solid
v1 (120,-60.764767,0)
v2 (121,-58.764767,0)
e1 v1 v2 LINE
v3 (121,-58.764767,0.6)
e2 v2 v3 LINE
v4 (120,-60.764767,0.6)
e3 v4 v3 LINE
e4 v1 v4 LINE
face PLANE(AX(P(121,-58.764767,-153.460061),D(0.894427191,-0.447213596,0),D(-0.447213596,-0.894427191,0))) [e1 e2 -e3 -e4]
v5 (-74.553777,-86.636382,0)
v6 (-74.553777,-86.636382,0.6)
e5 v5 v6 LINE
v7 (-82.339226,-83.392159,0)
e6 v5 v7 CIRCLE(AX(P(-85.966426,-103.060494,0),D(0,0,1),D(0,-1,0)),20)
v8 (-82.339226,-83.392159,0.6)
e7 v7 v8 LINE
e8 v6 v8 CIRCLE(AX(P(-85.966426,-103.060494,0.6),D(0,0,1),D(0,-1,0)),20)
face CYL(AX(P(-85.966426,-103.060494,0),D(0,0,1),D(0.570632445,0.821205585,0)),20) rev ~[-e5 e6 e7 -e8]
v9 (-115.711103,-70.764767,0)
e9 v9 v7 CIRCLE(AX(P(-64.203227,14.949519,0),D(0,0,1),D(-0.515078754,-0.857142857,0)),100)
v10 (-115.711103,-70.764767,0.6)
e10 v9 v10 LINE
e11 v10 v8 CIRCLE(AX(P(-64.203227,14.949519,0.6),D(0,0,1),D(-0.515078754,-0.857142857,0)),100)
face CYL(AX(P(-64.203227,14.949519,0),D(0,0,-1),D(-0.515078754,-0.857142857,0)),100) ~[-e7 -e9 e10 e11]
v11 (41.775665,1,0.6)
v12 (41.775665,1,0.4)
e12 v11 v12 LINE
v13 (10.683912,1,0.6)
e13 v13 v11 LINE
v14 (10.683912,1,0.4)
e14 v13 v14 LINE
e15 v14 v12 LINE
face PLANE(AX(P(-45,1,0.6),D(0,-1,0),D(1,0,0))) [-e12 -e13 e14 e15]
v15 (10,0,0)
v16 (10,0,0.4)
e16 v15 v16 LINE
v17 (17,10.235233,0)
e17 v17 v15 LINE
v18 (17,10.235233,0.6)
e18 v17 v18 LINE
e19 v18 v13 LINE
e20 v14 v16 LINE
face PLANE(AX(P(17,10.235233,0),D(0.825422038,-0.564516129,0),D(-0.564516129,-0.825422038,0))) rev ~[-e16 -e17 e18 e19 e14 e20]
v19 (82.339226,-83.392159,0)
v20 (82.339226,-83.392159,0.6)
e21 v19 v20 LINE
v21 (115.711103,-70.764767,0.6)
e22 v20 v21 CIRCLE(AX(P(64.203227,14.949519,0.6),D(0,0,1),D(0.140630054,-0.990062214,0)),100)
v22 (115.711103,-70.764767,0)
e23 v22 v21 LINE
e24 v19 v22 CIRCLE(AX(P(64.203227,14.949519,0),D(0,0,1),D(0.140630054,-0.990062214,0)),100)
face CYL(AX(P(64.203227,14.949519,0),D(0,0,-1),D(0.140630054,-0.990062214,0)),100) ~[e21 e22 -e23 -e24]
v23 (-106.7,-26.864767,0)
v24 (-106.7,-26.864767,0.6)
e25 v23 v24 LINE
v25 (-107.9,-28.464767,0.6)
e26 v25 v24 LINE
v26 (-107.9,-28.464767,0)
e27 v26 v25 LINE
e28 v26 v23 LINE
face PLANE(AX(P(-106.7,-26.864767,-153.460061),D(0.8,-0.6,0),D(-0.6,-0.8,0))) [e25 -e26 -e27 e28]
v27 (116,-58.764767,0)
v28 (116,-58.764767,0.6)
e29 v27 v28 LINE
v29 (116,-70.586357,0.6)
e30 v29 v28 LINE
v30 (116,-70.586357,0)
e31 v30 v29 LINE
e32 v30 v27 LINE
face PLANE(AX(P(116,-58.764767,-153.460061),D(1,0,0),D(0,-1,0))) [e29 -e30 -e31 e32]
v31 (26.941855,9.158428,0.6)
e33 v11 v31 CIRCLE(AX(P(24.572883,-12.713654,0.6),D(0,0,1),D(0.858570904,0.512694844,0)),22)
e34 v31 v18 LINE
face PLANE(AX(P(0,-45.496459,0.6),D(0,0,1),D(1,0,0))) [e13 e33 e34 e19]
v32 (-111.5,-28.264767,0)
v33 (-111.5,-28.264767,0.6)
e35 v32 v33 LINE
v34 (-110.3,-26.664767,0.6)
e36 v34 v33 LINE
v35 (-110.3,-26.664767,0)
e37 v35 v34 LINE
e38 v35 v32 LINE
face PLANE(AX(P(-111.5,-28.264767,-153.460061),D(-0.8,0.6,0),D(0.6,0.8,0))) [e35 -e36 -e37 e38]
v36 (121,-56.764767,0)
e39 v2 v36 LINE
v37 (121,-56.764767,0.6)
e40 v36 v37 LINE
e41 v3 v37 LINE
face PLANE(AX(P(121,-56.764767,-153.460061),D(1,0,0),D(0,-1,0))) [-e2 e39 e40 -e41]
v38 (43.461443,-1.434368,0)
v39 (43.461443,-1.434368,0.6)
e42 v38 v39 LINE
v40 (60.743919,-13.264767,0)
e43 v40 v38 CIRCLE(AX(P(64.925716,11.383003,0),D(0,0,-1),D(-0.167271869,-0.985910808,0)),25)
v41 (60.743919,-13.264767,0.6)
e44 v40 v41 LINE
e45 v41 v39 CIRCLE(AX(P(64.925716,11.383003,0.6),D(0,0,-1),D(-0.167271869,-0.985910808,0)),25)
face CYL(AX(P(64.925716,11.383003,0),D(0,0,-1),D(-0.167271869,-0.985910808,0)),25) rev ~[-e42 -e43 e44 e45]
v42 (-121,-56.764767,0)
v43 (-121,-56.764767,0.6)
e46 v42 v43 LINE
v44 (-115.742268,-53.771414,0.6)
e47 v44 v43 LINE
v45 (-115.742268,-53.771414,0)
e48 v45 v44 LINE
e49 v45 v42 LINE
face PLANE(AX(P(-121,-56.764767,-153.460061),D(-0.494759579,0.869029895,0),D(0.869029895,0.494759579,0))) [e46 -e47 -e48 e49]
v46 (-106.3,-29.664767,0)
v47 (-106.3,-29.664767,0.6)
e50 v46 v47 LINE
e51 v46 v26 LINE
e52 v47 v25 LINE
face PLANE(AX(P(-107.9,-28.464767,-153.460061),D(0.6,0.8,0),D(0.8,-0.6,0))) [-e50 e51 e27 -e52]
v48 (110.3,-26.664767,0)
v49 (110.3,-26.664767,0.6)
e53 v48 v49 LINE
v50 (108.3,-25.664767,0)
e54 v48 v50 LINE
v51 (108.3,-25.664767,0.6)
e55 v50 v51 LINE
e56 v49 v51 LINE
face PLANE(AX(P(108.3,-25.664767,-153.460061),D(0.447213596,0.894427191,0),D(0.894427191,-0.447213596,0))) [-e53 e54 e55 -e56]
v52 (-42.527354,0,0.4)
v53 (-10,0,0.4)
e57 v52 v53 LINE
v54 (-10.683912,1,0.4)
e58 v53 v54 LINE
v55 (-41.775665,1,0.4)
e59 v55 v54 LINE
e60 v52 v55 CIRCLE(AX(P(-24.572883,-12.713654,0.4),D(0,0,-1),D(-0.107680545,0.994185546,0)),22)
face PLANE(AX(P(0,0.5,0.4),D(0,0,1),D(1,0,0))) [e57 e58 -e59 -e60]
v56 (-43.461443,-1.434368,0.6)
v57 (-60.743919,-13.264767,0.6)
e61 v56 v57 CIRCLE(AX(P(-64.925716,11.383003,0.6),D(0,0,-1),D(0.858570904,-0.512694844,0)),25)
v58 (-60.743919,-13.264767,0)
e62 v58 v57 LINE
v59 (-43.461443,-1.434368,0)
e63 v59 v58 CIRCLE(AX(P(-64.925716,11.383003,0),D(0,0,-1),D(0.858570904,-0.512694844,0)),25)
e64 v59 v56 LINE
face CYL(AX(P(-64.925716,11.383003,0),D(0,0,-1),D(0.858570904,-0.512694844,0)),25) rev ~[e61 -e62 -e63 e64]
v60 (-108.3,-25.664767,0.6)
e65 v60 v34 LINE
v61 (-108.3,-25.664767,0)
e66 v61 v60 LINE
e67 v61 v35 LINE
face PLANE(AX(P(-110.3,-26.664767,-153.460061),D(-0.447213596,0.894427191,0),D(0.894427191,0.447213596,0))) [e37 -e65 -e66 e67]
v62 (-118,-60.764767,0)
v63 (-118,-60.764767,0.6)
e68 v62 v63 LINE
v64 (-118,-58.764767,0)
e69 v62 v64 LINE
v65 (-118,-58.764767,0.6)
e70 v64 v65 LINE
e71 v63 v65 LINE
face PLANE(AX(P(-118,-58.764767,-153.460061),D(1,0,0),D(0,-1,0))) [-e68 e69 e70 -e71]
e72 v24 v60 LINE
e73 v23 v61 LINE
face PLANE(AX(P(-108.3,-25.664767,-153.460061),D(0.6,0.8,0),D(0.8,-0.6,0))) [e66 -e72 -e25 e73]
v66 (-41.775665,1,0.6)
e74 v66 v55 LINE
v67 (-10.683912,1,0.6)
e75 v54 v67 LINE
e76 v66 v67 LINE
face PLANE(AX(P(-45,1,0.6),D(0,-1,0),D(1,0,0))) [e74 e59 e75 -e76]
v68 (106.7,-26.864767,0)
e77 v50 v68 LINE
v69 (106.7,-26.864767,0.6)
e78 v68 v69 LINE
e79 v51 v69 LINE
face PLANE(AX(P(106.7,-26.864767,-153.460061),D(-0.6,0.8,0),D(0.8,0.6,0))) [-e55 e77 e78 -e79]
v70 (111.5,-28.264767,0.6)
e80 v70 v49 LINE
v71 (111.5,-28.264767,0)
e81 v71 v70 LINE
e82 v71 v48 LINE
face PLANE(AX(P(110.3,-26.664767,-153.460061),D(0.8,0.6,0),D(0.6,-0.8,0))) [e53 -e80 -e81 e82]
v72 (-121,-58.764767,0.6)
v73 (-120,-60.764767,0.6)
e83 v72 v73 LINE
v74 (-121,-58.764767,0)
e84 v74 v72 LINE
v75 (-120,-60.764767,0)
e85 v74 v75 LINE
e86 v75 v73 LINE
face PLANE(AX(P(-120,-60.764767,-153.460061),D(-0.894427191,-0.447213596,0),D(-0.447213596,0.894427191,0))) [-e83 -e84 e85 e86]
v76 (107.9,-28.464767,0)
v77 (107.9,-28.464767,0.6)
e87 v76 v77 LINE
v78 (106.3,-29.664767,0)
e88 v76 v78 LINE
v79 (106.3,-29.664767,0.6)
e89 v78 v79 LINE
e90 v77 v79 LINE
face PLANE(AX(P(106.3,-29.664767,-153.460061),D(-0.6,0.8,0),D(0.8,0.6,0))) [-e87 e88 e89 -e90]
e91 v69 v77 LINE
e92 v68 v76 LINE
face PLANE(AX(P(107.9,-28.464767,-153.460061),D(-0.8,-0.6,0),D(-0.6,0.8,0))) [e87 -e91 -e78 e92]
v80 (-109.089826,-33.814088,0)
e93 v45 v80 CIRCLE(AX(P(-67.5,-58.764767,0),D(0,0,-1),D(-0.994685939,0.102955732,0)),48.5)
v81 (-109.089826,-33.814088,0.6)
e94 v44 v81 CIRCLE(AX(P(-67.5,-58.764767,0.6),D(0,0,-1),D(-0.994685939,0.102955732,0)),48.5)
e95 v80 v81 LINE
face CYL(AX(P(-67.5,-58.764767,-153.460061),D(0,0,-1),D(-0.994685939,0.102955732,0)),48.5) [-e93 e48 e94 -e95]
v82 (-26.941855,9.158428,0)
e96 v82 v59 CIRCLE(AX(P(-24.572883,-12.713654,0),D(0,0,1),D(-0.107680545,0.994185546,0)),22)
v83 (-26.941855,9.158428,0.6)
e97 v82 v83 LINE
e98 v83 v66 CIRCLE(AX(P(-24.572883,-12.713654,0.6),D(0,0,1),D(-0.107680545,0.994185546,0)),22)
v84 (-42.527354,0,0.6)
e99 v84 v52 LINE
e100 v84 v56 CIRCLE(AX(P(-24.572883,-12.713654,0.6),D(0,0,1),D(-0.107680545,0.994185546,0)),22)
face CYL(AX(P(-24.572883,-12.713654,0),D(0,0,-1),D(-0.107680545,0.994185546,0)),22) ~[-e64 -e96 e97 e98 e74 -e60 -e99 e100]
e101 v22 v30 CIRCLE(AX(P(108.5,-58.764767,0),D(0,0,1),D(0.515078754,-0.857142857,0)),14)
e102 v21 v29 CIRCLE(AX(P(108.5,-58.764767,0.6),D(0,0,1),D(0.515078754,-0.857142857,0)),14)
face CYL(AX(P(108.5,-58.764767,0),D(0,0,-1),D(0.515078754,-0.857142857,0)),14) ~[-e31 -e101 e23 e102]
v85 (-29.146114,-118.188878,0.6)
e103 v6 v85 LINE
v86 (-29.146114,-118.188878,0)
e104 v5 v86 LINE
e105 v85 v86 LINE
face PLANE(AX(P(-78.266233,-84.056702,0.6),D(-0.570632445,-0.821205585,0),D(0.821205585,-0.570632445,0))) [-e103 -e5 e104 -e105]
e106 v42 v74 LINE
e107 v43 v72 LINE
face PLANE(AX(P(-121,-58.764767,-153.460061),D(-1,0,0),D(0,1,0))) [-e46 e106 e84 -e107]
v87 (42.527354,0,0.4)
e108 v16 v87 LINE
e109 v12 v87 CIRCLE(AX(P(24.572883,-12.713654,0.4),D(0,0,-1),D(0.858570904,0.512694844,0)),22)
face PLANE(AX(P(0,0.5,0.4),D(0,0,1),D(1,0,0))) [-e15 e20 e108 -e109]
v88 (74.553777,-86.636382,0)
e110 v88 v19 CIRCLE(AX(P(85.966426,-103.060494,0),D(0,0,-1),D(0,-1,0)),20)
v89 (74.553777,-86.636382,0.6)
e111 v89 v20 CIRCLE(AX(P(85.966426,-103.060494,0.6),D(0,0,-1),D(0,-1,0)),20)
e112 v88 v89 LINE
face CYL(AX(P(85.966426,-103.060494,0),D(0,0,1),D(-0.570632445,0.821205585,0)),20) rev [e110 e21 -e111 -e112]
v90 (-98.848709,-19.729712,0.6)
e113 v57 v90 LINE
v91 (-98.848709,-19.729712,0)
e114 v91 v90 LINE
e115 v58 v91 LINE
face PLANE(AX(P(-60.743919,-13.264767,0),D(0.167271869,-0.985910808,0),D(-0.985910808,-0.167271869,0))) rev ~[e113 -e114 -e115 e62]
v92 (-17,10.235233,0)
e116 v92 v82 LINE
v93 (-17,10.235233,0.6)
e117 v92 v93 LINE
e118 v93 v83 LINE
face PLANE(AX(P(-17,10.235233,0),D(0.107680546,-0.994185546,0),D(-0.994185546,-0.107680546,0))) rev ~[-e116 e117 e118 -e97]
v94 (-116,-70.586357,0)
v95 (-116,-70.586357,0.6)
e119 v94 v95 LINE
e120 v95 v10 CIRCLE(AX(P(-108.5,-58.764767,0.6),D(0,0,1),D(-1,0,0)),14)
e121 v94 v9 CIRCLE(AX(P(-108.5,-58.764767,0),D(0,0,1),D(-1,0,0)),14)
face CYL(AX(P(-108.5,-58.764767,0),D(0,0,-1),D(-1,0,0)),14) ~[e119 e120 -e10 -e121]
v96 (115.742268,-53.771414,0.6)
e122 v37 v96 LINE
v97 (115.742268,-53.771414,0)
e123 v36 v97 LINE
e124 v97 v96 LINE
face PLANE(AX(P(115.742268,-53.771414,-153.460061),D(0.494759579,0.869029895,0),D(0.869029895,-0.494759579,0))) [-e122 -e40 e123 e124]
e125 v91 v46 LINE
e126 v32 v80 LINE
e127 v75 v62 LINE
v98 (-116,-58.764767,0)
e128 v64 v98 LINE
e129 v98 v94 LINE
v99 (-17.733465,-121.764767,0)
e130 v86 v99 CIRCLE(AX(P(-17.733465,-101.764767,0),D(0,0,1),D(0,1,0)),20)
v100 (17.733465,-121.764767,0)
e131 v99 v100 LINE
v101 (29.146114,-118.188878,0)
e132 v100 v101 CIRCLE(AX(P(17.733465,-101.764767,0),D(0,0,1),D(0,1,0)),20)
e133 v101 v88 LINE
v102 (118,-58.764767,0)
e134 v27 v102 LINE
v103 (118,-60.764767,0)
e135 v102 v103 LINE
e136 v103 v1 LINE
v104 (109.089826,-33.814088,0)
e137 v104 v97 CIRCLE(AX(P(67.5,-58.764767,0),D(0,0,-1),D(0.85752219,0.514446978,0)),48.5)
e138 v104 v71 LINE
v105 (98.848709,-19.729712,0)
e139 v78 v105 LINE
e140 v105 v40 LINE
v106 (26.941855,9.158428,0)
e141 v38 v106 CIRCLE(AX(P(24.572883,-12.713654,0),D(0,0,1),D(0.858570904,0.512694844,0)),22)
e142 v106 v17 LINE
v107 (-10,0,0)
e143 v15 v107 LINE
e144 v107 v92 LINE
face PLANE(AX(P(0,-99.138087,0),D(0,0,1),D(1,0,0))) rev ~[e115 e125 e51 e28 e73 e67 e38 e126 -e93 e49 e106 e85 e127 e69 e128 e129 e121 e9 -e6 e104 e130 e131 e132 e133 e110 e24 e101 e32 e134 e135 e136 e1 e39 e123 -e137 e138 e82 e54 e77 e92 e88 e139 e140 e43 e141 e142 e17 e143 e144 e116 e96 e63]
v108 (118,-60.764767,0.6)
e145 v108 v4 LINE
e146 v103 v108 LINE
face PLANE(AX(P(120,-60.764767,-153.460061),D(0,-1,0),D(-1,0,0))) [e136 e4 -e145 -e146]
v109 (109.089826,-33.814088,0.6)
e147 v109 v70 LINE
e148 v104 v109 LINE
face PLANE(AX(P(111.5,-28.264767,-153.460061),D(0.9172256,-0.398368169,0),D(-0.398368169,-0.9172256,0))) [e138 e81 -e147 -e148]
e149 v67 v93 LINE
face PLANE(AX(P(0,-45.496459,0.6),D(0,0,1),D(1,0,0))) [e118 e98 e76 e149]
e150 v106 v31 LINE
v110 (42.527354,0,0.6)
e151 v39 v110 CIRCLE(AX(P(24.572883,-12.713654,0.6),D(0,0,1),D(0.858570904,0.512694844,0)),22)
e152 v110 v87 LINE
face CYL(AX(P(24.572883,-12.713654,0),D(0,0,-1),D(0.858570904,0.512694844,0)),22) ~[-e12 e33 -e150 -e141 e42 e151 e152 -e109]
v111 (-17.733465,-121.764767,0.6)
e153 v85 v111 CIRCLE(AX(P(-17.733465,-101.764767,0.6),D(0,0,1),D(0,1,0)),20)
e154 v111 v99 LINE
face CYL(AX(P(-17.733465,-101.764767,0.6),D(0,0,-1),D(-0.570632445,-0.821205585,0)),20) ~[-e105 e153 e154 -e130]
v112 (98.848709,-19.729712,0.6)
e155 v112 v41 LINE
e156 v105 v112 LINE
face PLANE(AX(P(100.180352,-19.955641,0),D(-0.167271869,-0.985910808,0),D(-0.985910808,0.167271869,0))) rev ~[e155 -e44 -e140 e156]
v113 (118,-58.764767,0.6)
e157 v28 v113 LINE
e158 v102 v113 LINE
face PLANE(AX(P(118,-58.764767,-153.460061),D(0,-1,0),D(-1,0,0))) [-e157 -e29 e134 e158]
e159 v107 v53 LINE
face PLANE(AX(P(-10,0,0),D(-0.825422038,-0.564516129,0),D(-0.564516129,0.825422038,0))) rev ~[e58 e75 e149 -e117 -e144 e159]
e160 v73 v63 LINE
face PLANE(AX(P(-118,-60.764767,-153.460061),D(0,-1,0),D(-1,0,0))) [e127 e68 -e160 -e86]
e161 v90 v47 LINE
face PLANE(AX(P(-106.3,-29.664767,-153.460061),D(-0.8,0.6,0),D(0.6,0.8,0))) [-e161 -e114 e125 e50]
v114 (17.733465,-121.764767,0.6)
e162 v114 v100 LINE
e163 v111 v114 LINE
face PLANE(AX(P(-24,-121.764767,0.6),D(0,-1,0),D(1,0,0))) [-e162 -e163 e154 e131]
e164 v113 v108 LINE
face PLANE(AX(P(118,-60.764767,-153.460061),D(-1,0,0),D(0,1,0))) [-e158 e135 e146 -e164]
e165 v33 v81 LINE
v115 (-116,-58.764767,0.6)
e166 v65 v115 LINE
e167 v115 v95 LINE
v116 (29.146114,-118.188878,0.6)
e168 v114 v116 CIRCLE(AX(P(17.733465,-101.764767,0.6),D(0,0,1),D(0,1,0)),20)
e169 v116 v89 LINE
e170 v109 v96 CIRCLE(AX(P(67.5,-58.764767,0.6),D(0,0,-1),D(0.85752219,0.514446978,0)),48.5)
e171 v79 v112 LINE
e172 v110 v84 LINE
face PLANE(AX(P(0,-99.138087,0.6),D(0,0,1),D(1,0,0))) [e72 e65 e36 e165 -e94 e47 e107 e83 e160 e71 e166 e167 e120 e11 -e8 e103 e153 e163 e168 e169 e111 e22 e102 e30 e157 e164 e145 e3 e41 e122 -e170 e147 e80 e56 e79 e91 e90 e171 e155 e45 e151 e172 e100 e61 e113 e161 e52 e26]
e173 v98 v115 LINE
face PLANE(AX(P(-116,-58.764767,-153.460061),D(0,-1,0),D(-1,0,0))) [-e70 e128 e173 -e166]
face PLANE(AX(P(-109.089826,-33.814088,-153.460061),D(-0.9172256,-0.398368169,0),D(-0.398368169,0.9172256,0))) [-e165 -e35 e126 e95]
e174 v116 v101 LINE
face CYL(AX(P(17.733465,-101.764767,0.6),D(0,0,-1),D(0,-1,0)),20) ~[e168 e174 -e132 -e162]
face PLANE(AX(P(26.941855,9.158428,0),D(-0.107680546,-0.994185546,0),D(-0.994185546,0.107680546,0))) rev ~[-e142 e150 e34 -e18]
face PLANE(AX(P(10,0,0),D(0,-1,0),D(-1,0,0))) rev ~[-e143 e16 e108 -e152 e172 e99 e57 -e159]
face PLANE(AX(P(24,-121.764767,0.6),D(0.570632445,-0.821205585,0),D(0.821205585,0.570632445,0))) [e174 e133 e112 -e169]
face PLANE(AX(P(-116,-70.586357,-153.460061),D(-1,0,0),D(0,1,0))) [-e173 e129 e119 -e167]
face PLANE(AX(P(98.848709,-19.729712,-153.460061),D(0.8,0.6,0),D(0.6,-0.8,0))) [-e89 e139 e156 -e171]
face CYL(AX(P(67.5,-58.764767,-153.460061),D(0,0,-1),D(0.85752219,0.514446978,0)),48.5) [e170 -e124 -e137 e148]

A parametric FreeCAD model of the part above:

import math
import FreeCAD as App
import Part
import Sketcher

V = App.Vector
Q = App.Units.Quantity


def edges_at(feature, points):
    """Names of the edges that pass closest to the given points."""
    edges = feature.Shape.Edges
    near = lambda p: min(range(len(edges)), key=lambda i: edges[i].distToShape(Part.Vertex(*p))[0])
    return sorted({f"Edge{near(p) + 1}" for p in points})

doc = App.newDocument("Part")
body = doc.addObject("PartDesign::Body", "Body")

sketch1 = body.newObject("Sketcher::SketchObject", "Sketch")
sketch1.AttachmentSupport = (doc.getObject("XY_Plane"), [""])
sketch1.MapMode = "FlatFace"
sketch1.addGeometry(Part.LineSegment(V(-24, -92, 0), V(24, -92, 0)), False)
sketch1.addGeometry(Part.LineSegment(V(24, -92, 0), V(78, -84, 0)), False)
sketch1.addGeometry(Part.ArcOfCircle(Part.Circle(V(64, 15, 0), V(0, 0, 1), 100), math.radians(-82), math.radians(-59)), False)
sketch1.addGeometry(Part.ArcOfCircle(Part.Circle(V(109, -59, 0), V(0, 0, 1), 14), math.radians(-59), math.radians(0)), False)
sketch1.addGeometry(Part.ArcOfCircle(Part.Circle(V(68, -59, 0), V(0, 0, 1), 55), math.radians(0), math.radians(33)), False)
sketch1.addGeometry(Part.ArcOfCircle(Part.Circle(V(97, -40, 0), V(0, 0, 1), 20), math.radians(33), math.radians(80)), False)
sketch1.addGeometry(Part.LineSegment(V(100, -20, 0), V(61, -13, 0)), False)
sketch1.addGeometry(Part.ArcOfCircle(Part.Circle(V(65, 11, 0), V(0, 0, 1), 25), math.radians(-149), math.radians(-100)), False)
sketch1.addGeometry(Part.ArcOfCircle(Part.Circle(V(25, -13, 0), V(0, 0, 1), 22), math.radians(31), math.radians(84)), False)
sketch1.addGeometry(Part.LineSegment(V(27, 9, 0), V(17, 10, 0)), False)
sketch1.addGeometry(Part.LineSegment(V(17, 10, 0), V(10, 0, 0)), False)
sketch1.addGeometry(Part.LineSegment(V(10, 0, 0), V(-10, 0, 0)), False)
sketch1.addGeometry(Part.LineSegment(V(-10, 0, 0), V(-17, 10, 0)), False)
sketch1.addGeometry(Part.LineSegment(V(-17, 10, 0), V(-27, 9, 0)), False)
sketch1.addGeometry(Part.ArcOfCircle(Part.Circle(V(-25, -13, 0), V(0, 0, 1), 22), math.radians(96), math.radians(149)), False)
sketch1.addGeometry(Part.ArcOfCircle(Part.Circle(V(-65, 11, 0), V(0, 0, 1), 25), math.radians(-80), math.radians(-31)), False)
sketch1.addGeometry(Part.LineSegment(V(-61, -13, 0), V(-100, -20, 0)), False)
sketch1.addGeometry(Part.ArcOfCircle(Part.Circle(V(-97, -40, 0), V(0, 0, 1), 20), math.radians(100), math.radians(147)), False)
sketch1.addGeometry(Part.ArcOfCircle(Part.Circle(V(-68, -59, 0), V(0, 0, 1), 55), math.radians(147), math.radians(180)), False)
sketch1.addGeometry(Part.ArcOfCircle(Part.Circle(V(-109, -59, 0), V(0, 0, 1), 14), math.radians(180), math.radians(239)), False)
sketch1.addGeometry(Part.ArcOfCircle(Part.Circle(V(-64, 15, 0), V(0, 0, 1), 100), math.radians(-121), math.radians(-98)), False)
sketch1.addGeometry(Part.LineSegment(V(-78, -84, 0), V(-24, -92, 0)), False)
sketch1.addConstraint(Sketcher.Constraint("Coincident", 0, 2, 1, 1))
sketch1.addConstraint(Sketcher.Constraint("Tangent", 1, 2, 2, 1))
sketch1.addConstraint(Sketcher.Constraint("Tangent", 2, 2, 3, 1))
sketch1.addConstraint(Sketcher.Constraint("Tangent", 3, 2, 4, 1))
sketch1.addConstraint(Sketcher.Constraint("Tangent", 4, 2, 5, 1))
sketch1.addConstraint(Sketcher.Constraint("Tangent", 5, 2, 6, 1))
sketch1.addConstraint(Sketcher.Constraint("Tangent", 6, 2, 7, 2))
sketch1.addConstraint(Sketcher.Constraint("Tangent", 7, 1, 8, 1))
sketch1.addConstraint(Sketcher.Constraint("Tangent", 8, 2, 9, 1))
sketch1.addConstraint(Sketcher.Constraint("Coincident", 9, 2, 10, 1))
sketch1.addConstraint(Sketcher.Constraint("Coincident", 10, 2, 11, 1))
sketch1.addConstraint(Sketcher.Constraint("Coincident", 11, 2, 12, 1))
sketch1.addConstraint(Sketcher.Constraint("Coincident", 12, 2, 13, 1))
sketch1.addConstraint(Sketcher.Constraint("Tangent", 13, 2, 14, 1))
sketch1.addConstraint(Sketcher.Constraint("Tangent", 14, 2, 15, 2))
sketch1.addConstraint(Sketcher.Constraint("Tangent", 15, 1, 16, 1))
sketch1.addConstraint(Sketcher.Constraint("Tangent", 16, 2, 17, 1))
sketch1.addConstraint(Sketcher.Constraint("Tangent", 17, 2, 18, 1))
sketch1.addConstraint(Sketcher.Constraint("Tangent", 18, 2, 19, 1))
sketch1.addConstraint(Sketcher.Constraint("Tangent", 19, 2, 20, 1))
sketch1.addConstraint(Sketcher.Constraint("Tangent", 20, 2, 21, 1))
sketch1.addConstraint(Sketcher.Constraint("Coincident", 21, 2, 0, 1))
sketch1.addConstraint(Sketcher.Constraint("Horizontal", 0))
sketch1.addConstraint(Sketcher.Constraint("Horizontal", 11))
sketch1.addConstraint(Sketcher.Constraint("Equal", 8, 14))
sketch1.addConstraint(Sketcher.Constraint("Equal", 7, 15))
sketch1.addConstraint(Sketcher.Constraint("Equal", 5, 17))
sketch1.addConstraint(Sketcher.Constraint("Equal", 4, 18))
sketch1.addConstraint(Sketcher.Constraint("Equal", 3, 19))
sketch1.addConstraint(Sketcher.Constraint("Equal", 2, 20))
sketch1.addConstraint(Sketcher.Constraint("Symmetric", 10, 2, 11, 2, -1, 1))
sketch1.addConstraint(Sketcher.Constraint("Symmetric", 8, 3, 14, 3, -2))
sketch1.addConstraint(Sketcher.Constraint("Symmetric", 5, 3, 17, 3, -2))
sketch1.addConstraint(Sketcher.Constraint("Symmetric", 3, 3, 19, 3, -2))
sketch1.addConstraint(Sketcher.Constraint("Symmetric", 9, 2, 12, 2, -2))
sketch1.addConstraint(Sketcher.Constraint("Symmetric", 1, 2, 20, 2, -2))
sketch1.addConstraint(Sketcher.Constraint("Horizontal", 3, 3, 4, 3))
sketch1.addConstraint(Sketcher.Constraint("Horizontal", 7, 3, 15, 3))
sketch1.addConstraint(Sketcher.Constraint("Radius", 2, Q("100 mm")))
sketch1.addConstraint(Sketcher.Constraint("Radius", 3, Q("14 mm")))
sketch1.addConstraint(Sketcher.Constraint("Radius", 4, Q("55 mm")))
sketch1.addConstraint(Sketcher.Constraint("Radius", 5, Q("20 mm")))
sketch1.addConstraint(Sketcher.Constraint("Radius", 7, Q("25 mm")))
sketch1.addConstraint(Sketcher.Constraint("Radius", 8, Q("22 mm")))
sketch1.addConstraint(Sketcher.Constraint("DistanceX", 0, 1, 0, 2, Q("48 mm")))
sketch1.addConstraint(Sketcher.Constraint("DistanceX", 11, 2, 11, 1, Q("20 mm")))
sketch1.addConstraint(Sketcher.Constraint("Distance", 6, Q("40 mm")))
sketch1.addConstraint(Sketcher.Constraint("Distance", 9, Q("10 mm")))
sketch1.addConstraint(Sketcher.Constraint("DistanceX", -1, 1, 9, 2, Q("17 mm")))
sketch1.addConstraint(Sketcher.Constraint("DistanceX", 18, 3, 4, 3, Q("135 mm")))
sketch1.addConstraint(Sketcher.Constraint("DistanceY", 0, 2, 4, 3, Q("33 mm")))
sketch1.addConstraint(Sketcher.Constraint("DistanceY", 3, 3, 4, 2, Q("30 mm")))
sketch1.addConstraint(Sketcher.Constraint("DistanceY", 19, 2, 19, 3, Q("12 mm")))
sketch1.addConstraint(Sketcher.Constraint("Distance", 10, Q("12.4 mm")))
sketch1.addConstraint(Sketcher.Constraint("DistanceY", 17, 2, 15, 1, Q("15.5 mm")))
sketch1.addConstraint(Sketcher.Constraint("DistanceX", 14, 3, 7, 3, Q("89.498599 mm")))
pad1 = body.newObject("PartDesign::Pad", "Pad")
pad1.Profile = sketch1
pad1.Length = 0.6

sketch2 = body.newObject("Sketcher::SketchObject", "Sketch001")
sketch2.AttachmentSupport = (doc.getObject("XY_Plane"), [""])
sketch2.MapMode = "FlatFace"
sketch2.AttachmentOffset = App.Placement(V(0, 0, 0.6), App.Rotation())
sketch2.addGeometry(Part.LineSegment(V(-121, -58.8, 0), V(-121, -56.8, 0)), False)
sketch2.addGeometry(Part.LineSegment(V(-121, -56.8, 0), V(-115.7, -53.8, 0)), False)
sketch2.addGeometry(Part.ArcOfCircle(Part.Circle(V(-67.5, -58.8, 0), V(0, 0, 1), 48.5), math.radians(149), math.radians(174)), False)
sketch2.addGeometry(Part.LineSegment(V(-109.1, -33.8, 0), V(-111.5, -28.3, 0)), False)
sketch2.addGeometry(Part.LineSegment(V(-111.5, -28.3, 0), V(-110.3, -26.7, 0)), False)
sketch2.addGeometry(Part.LineSegment(V(-110.3, -26.7, 0), V(-108.3, -25.7, 0)), False)
sketch2.addGeometry(Part.LineSegment(V(-108.3, -25.7, 0), V(-106.7, -26.9, 0)), False)
sketch2.addGeometry(Part.LineSegment(V(-106.7, -26.9, 0), V(-107.9, -28.5, 0)), False)
sketch2.addGeometry(Part.LineSegment(V(-107.9, -28.5, 0), V(-106.3, -29.7, 0)), False)
sketch2.addGeometry(Part.LineSegment(V(-106.3, -29.7, 0), V(-98.8, -19.7, 0)), False)
sketch2.addGeometry(Part.LineSegment(V(-98.8, -19.7, 0), V(-100.2, -20, 0)), False)
sketch2.addGeometry(Part.ArcOfCircle(Part.Circle(V(-96.8, -39.7, 0), V(0, 0, 1), 20), math.radians(100), math.radians(147)), False)
sketch2.addGeometry(Part.ArcOfCircle(Part.Circle(V(-67.5, -58.8, 0), V(0, 0, 1), 55), math.radians(147), math.radians(180)), False)
sketch2.addGeometry(Part.ArcOfCircle(Part.Circle(V(-108.5, -58.8, 0), V(0, 0, 1), 14), math.radians(-180), math.radians(-122)), False)
sketch2.addGeometry(Part.LineSegment(V(-116, -70.6, 0), V(-116, -58.8, 0)), False)
sketch2.addGeometry(Part.LineSegment(V(-116, -58.8, 0), V(-118, -58.8, 0)), False)
sketch2.addGeometry(Part.LineSegment(V(-118, -58.8, 0), V(-118, -60.8, 0)), False)
sketch2.addGeometry(Part.LineSegment(V(-118, -60.8, 0), V(-120, -60.8, 0)), False)
sketch2.addGeometry(Part.LineSegment(V(-120, -60.8, 0), V(-121, -58.8, 0)), False)
sketch2.addGeometry(Part.LineSegment(V(110.3, -26.7, 0), V(111.5, -28.3, 0)), False)
sketch2.addGeometry(Part.LineSegment(V(111.5, -28.3, 0), V(109.1, -33.8, 0)), False)
sketch2.addGeometry(Part.ArcOfCircle(Part.Circle(V(67.5, -58.8, 0), V(0, 0, 1), 48.5), math.radians(6), math.radians(31)), False)
sketch2.addGeometry(Part.LineSegment(V(115.7, -53.8, 0), V(121, -56.8, 0)), False)
sketch2.addGeometry(Part.LineSegment(V(121, -56.8, 0), V(121, -58.8, 0)), False)
sketch2.addGeometry(Part.LineSegment(V(121, -58.8, 0), V(120, -60.8, 0)), False)
sketch2.addGeometry(Part.LineSegment(V(120, -60.8, 0), V(118, -60.8, 0)), False)
sketch2.addGeometry(Part.LineSegment(V(118, -60.8, 0), V(118, -58.8, 0)), False)
sketch2.addGeometry(Part.LineSegment(V(118, -58.8, 0), V(116, -58.8, 0)), False)
sketch2.addGeometry(Part.LineSegment(V(116, -58.8, 0), V(116, -70.6, 0)), False)
sketch2.addGeometry(Part.ArcOfCircle(Part.Circle(V(108.5, -58.8, 0), V(0, 0, 1), 14), math.radians(-58), math.radians(0)), False)
sketch2.addGeometry(Part.ArcOfCircle(Part.Circle(V(67.5, -58.8, 0), V(0, 0, 1), 55), math.radians(0), math.radians(33)), False)
sketch2.addGeometry(Part.ArcOfCircle(Part.Circle(V(96.8, -39.7, 0), V(0, 0, 1), 20), math.radians(33), math.radians(80)), False)
sketch2.addGeometry(Part.LineSegment(V(100.2, -20, 0), V(98.8, -19.7, 0)), False)
sketch2.addGeometry(Part.LineSegment(V(98.8, -19.7, 0), V(106.3, -29.7, 0)), False)
sketch2.addGeometry(Part.LineSegment(V(106.3, -29.7, 0), V(107.9, -28.5, 0)), False)
sketch2.addGeometry(Part.LineSegment(V(107.9, -28.5, 0), V(106.7, -26.9, 0)), False)
sketch2.addGeometry(Part.LineSegment(V(106.7, -26.9, 0), V(108.3, -25.7, 0)), False)
sketch2.addGeometry(Part.LineSegment(V(108.3, -25.7, 0), V(110.3, -26.7, 0)), False)
sketch2.addConstraint(Sketcher.Constraint("Coincident", 0, 2, 1, 1))
sketch2.addConstraint(Sketcher.Constraint("Coincident", 1, 2, 2, 2))
sketch2.addConstraint(Sketcher.Constraint("Coincident", 2, 1, 3, 1))
sketch2.addConstraint(Sketcher.Constraint("Coincident", 3, 2, 4, 1))
sketch2.addConstraint(Sketcher.Constraint("Coincident", 4, 2, 5, 1))
sketch2.addConstraint(Sketcher.Constraint("Coincident", 5, 2, 6, 1))
sketch2.addConstraint(Sketcher.Constraint("Coincident", 6, 2, 7, 1))
sketch2.addConstraint(Sketcher.Constraint("Coincident", 7, 2, 8, 1))
sketch2.addConstraint(Sketcher.Constraint("Coincident", 8, 2, 9, 1))
sketch2.addConstraint(Sketcher.Constraint("Coincident", 9, 2, 10, 1))
sketch2.addConstraint(Sketcher.Constraint("Tangent", 10, 2, 11, 1))
sketch2.addConstraint(Sketcher.Constraint("Tangent", 11, 2, 12, 1))
sketch2.addConstraint(Sketcher.Constraint("Tangent", 12, 2, 13, 1))
sketch2.addConstraint(Sketcher.Constraint("Coincident", 13, 2, 14, 1))
sketch2.addConstraint(Sketcher.Constraint("Coincident", 14, 2, 15, 1))
sketch2.addConstraint(Sketcher.Constraint("Coincident", 15, 2, 16, 1))
sketch2.addConstraint(Sketcher.Constraint("Coincident", 16, 2, 17, 1))
sketch2.addConstraint(Sketcher.Constraint("Coincident", 17, 2, 18, 1))
sketch2.addConstraint(Sketcher.Constraint("Coincident", 18, 2, 0, 1))
sketch2.addConstraint(Sketcher.Constraint("Coincident", 19, 2, 20, 1))
sketch2.addConstraint(Sketcher.Constraint("Coincident", 20, 2, 21, 2))
sketch2.addConstraint(Sketcher.Constraint("Coincident", 21, 1, 22, 1))
sketch2.addConstraint(Sketcher.Constraint("Coincident", 22, 2, 23, 1))
sketch2.addConstraint(Sketcher.Constraint("Coincident", 23, 2, 24, 1))
sketch2.addConstraint(Sketcher.Constraint("Coincident", 24, 2, 25, 1))
sketch2.addConstraint(Sketcher.Constraint("Coincident", 25, 2, 26, 1))
sketch2.addConstraint(Sketcher.Constraint("Coincident", 26, 2, 27, 1))
sketch2.addConstraint(Sketcher.Constraint("Coincident", 27, 2, 28, 1))
sketch2.addConstraint(Sketcher.Constraint("Coincident", 28, 2, 29, 1))
sketch2.addConstraint(Sketcher.Constraint("Tangent", 29, 2, 30, 1))
sketch2.addConstraint(Sketcher.Constraint("Tangent", 30, 2, 31, 1))
sketch2.addConstraint(Sketcher.Constraint("Tangent", 31, 2, 32, 1))
sketch2.addConstraint(Sketcher.Constraint("Coincident", 32, 2, 33, 1))
sketch2.addConstraint(Sketcher.Constraint("Coincident", 33, 2, 34, 1))
sketch2.addConstraint(Sketcher.Constraint("Coincident", 34, 2, 35, 1))
sketch2.addConstraint(Sketcher.Constraint("Coincident", 35, 2, 36, 1))
sketch2.addConstraint(Sketcher.Constraint("Coincident", 36, 2, 37, 1))
sketch2.addConstraint(Sketcher.Constraint("Coincident", 37, 2, 19, 1))
sketch2.addConstraint(Sketcher.Constraint("Vertical", 0))
sketch2.addConstraint(Sketcher.Constraint("Vertical", 14))
sketch2.addConstraint(Sketcher.Constraint("Horizontal", 15))
sketch2.addConstraint(Sketcher.Constraint("Vertical", 16))
sketch2.addConstraint(Sketcher.Constraint("Horizontal", 17))
sketch2.addConstraint(Sketcher.Constraint("Vertical", 23))
sketch2.addConstraint(Sketcher.Constraint("Horizontal", 25))
sketch2.addConstraint(Sketcher.Constraint("Vertical", 26))
sketch2.addConstraint(Sketcher.Constraint("Horizontal", 27))
sketch2.addConstraint(Sketcher.Constraint("Vertical", 28))
sketch2.addConstraint(Sketcher.Constraint("Coincident", 12, 3, 2, 3))
sketch2.addConstraint(Sketcher.Constraint("Coincident", 30, 3, 21, 3))
sketch2.addConstraint(Sketcher.Constraint("Equal", 2, 21))
sketch2.addConstraint(Sketcher.Constraint("Equal", 13, 29))
sketch2.addConstraint(Sketcher.Constraint("Equal", 12, 30))
sketch2.addConstraint(Sketcher.Constraint("Equal", 11, 31))
sketch2.addConstraint(Sketcher.Constraint("Symmetric", 2, 3, 21, 3, -2))
sketch2.addConstraint(Sketcher.Constraint("Symmetric", 3, 2, 19, 2, -2))
sketch2.addConstraint(Sketcher.Constraint("Symmetric", 0, 2, 22, 2, -2))
sketch2.addConstraint(Sketcher.Constraint("Symmetric", 17, 2, 24, 2, -2))
sketch2.addConstraint(Sketcher.Constraint("Symmetric", 15, 2, 26, 2, -2))
sketch2.addConstraint(Sketcher.Constraint("Symmetric", 13, 2, 28, 2, -2))
sketch2.addConstraint(Sketcher.Constraint("Symmetric", 10, 2, 31, 2, -2))
sketch2.addConstraint(Sketcher.Constraint("Symmetric", 8, 2, 33, 2, -2))
sketch2.addConstraint(Sketcher.Constraint("Symmetric", 7, 2, 34, 2, -2))
sketch2.addConstraint(Sketcher.Constraint("Symmetric", 6, 2, 35, 2, -2))
sketch2.addConstraint(Sketcher.Constraint("Symmetric", 5, 2, 36, 2, -2))
sketch2.addConstraint(Sketcher.Constraint("Symmetric", 4, 2, 37, 2, -2))
sketch2.addConstraint(Sketcher.Constraint("Perpendicular", 4, 6))
sketch2.addConstraint(Sketcher.Constraint("Perpendicular", 6, 7))
sketch2.addConstraint(Sketcher.Constraint("Perpendicular", 7, 8))
sketch2.addConstraint(Sketcher.Constraint("Perpendicular", 8, 9))
sketch2.addConstraint(Sketcher.Constraint("Perpendicular", 5, 18))
sketch2.addConstraint(Sketcher.Constraint("Parallel", 19, 33))
sketch2.addConstraint(Sketcher.Constraint("Perpendicular", 24, 37))
sketch2.addConstraint(Sketcher.Constraint("Horizontal", 12, 3, 13, 3))
sketch2.addConstraint(Sketcher.Constraint("Horizontal", 12, 2, 14, 2))
sketch2.addConstraint(Sketcher.Constraint("Horizontal", 15, 2, 18, 2))
sketch2.addConstraint(Sketcher.Constraint("Horizontal", 2, 1, 20, 2))
sketch2.addConstraint(Sketcher.Constraint("Horizontal", 1, 2, 21, 1))
sketch2.addConstraint(Sketcher.Constraint("Equal", 15, 17))
sketch2.addConstraint(Sketcher.Constraint("Equal", 27, 0))
sketch2.addConstraint(Sketcher.Constraint("Equal", 0, 16))
sketch2.addConstraint(Sketcher.Constraint("Equal", 1, 3))
sketch2.addConstraint(Sketcher.Constraint("Equal", 4, 6))
sketch2.addConstraint(Sketcher.Constraint("Equal", 6, 7))
sketch2.addConstraint(Sketcher.Constraint("Equal", 7, 8))
sketch2.addConstraint(Sketcher.Constraint("Equal", 5, 18))
sketch2.addConstraint(Sketcher.Constraint("Radius", 11, Q("20 mm")))
sketch2.addConstraint(Sketcher.Constraint("Radius", 12, Q("55 mm")))
sketch2.addConstraint(Sketcher.Constraint("Radius", 13, Q("14 mm")))
sketch2.addConstraint(Sketcher.Constraint("Radius", 2, Q("48.5 mm")))
sketch2.addConstraint(Sketcher.Constraint("DistanceX", 15, 2, 15, 1, Q("2 mm")))
sketch2.addConstraint(Sketcher.Constraint("Distance", 4, Q("2 mm")))
sketch2.addConstraint(Sketcher.Constraint("DistanceX", 0, 2, -1, 1, Q("121 mm")))
sketch2.addConstraint(Sketcher.Constraint("DistanceX", 13, 2, -1, 1, Q("116 mm")))
sketch2.addConstraint(Sketcher.Constraint("DistanceX", 2, 3, 21, 3, Q("135 mm")))
sketch2.addConstraint(Sketcher.Constraint("DistanceX", 3, 2, 13, 3, Q("3 mm")))
sketch2.addConstraint(Sketcher.Constraint("DistanceX", 5, 2, 8, 2, Q("2 mm")))
sketch2.addConstraint(Sketcher.Constraint("DistanceY", 12, 2, 11, 2, Q("30 mm")))
sketch2.addConstraint(Sketcher.Constraint("DistanceY", 0, 2, 3, 2, Q("28.5 mm")))
sketch2.addConstraint(Sketcher.Constraint("Distance", 9, Q("12.418818 mm")))
sketch2.addConstraint(Sketcher.Constraint("DistanceX", 1, 2, -1, 1, Q("115.742268 mm")))
sketch2.addConstraint(Sketcher.Constraint("DistanceY", 2, 1, -1, 1, Q("33.814088 mm")))
pocket1 = body.newObject("PartDesign::Pocket", "Pocket")
pocket1.Profile = sketch2
pocket1.Type = "ThroughAll"
pocket1.Midplane = True

sketch3 = body.newObject("Sketcher::SketchObject", "Sketch002")
sketch3.AttachmentSupport = (doc.getObject("XY_Plane"), [""])
sketch3.MapMode = "FlatFace"
sketch3.AttachmentOffset = App.Placement(V(0, 0, 0.6), App.Rotation())
sketch3.addGeometry(Part.LineSegment(V(-45, 1, 0), V(-45, 0, 0)), False)
sketch3.addGeometry(Part.LineSegment(V(-45, 0, 0), V(45, 0, 0)), False)
sketch3.addGeometry(Part.LineSegment(V(45, 0, 0), V(45, 1, 0)), False)
sketch3.addGeometry(Part.LineSegment(V(45, 1, 0), V(-45, 1, 0)), False)
sketch3.addConstraint(Sketcher.Constraint("Coincident", 0, 2, 1, 1))
sketch3.addConstraint(Sketcher.Constraint("Coincident", 1, 2, 2, 1))
sketch3.addConstraint(Sketcher.Constraint("Coincident", 2, 2, 3, 1))
sketch3.addConstraint(Sketcher.Constraint("Coincident", 3, 2, 0, 1))
sketch3.addConstraint(Sketcher.Constraint("Vertical", 0))
sketch3.addConstraint(Sketcher.Constraint("Horizontal", 1))
sketch3.addConstraint(Sketcher.Constraint("Vertical", 2))
sketch3.addConstraint(Sketcher.Constraint("Horizontal", 3))
sketch3.addConstraint(Sketcher.Constraint("Symmetric", 0, 2, 1, 2, -1, 1))
sketch3.addConstraint(Sketcher.Constraint("DistanceX", 1, 1, 1, 2, Q("90 mm")))
sketch3.addConstraint(Sketcher.Constraint("DistanceY", 0, 2, 0, 1, Q("1 mm")))
pocket2 = body.newObject("PartDesign::Pocket", "Pocket001")
pocket2.Profile = sketch3
pocket2.Length = 0.2

sketch4 = body.newObject("Sketcher::SketchObject", "Sketch003")
sketch4.AttachmentSupport = (doc.getObject("XY_Plane"), [""])
sketch4.MapMode = "FlatFace"
sketch4.AttachmentOffset = App.Placement(V(0, 0, 0.6), App.Rotation())
sketch4.addGeometry(Part.LineSegment(V(-78, -84, 0), V(-24, -122, 0)), False)
sketch4.addGeometry(Part.LineSegment(V(-24, -122, 0), V(24, -122, 0)), False)
sketch4.addGeometry(Part.LineSegment(V(24, -122, 0), V(78, -84, 0)), False)
sketch4.addGeometry(Part.LineSegment(V(78, -84, 0), V(24, -92, 0)), False)
sketch4.addGeometry(Part.LineSegment(V(24, -92, 0), V(-24, -92, 0)), False)
sketch4.addGeometry(Part.LineSegment(V(-24, -92, 0), V(-78, -84, 0)), False)
sketch4.addConstraint(Sketcher.Constraint("Coincident", 0, 2, 1, 1))
sketch4.addConstraint(Sketcher.Constraint("Coincident", 1, 2, 2, 1))
sketch4.addConstraint(Sketcher.Constraint("Coincident", 2, 2, 3, 1))
sketch4.addConstraint(Sketcher.Constraint("Coincident", 3, 2, 4, 1))
sketch4.addConstraint(Sketcher.Constraint("Coincident", 4, 2, 5, 1))
sketch4.addConstraint(Sketcher.Constraint("Coincident", 5, 2, 0, 1))
sketch4.addConstraint(Sketcher.Constraint("Horizontal", 1))
sketch4.addConstraint(Sketcher.Constraint("Horizontal", 4))
sketch4.addConstraint(Sketcher.Constraint("Symmetric", 2, 2, 5, 2, -2))
sketch4.addConstraint(Sketcher.Constraint("Vertical", 1, 2, 3, 2))
sketch4.addConstraint(Sketcher.Constraint("Vertical", 0, 2, 4, 2))
sketch4.addConstraint(Sketcher.Constraint("Equal", 0, 2))
sketch4.addConstraint(Sketcher.Constraint("DistanceX", 1, 1, 1, 2, Q("48 mm")))
sketch4.addConstraint(Sketcher.Constraint("DistanceY", 1, 2, 3, 2, Q("30 mm")))
sketch4.addConstraint(Sketcher.Constraint("Distance", 0, Q("66.081178 mm")))
sketch4.addConstraint(Sketcher.Constraint("Distance", 3, Q("54.810932 mm")))
sketch4.addConstraint(Sketcher.Constraint("DistanceY", 0, 2, -1, 1, Q("121.764767 mm")))
pad2 = body.newObject("PartDesign::Pad", "Pad001")
pad2.Profile = sketch4
pad2.Length = 0.6
pad2.Reversed = True
doc.recompute()

fillet = body.newObject("PartDesign::Fillet", "Fillet")
fillet.Base = (pad2, edges_at(pad2, [
    (-24, -121.765, 0.3),
    (24, -121.765, 0.3),
    (78.266, -84.057, 0.3),
    (-78.266, -84.057, 0.3),
]))
fillet.Radius = 20

doc.recompute()
